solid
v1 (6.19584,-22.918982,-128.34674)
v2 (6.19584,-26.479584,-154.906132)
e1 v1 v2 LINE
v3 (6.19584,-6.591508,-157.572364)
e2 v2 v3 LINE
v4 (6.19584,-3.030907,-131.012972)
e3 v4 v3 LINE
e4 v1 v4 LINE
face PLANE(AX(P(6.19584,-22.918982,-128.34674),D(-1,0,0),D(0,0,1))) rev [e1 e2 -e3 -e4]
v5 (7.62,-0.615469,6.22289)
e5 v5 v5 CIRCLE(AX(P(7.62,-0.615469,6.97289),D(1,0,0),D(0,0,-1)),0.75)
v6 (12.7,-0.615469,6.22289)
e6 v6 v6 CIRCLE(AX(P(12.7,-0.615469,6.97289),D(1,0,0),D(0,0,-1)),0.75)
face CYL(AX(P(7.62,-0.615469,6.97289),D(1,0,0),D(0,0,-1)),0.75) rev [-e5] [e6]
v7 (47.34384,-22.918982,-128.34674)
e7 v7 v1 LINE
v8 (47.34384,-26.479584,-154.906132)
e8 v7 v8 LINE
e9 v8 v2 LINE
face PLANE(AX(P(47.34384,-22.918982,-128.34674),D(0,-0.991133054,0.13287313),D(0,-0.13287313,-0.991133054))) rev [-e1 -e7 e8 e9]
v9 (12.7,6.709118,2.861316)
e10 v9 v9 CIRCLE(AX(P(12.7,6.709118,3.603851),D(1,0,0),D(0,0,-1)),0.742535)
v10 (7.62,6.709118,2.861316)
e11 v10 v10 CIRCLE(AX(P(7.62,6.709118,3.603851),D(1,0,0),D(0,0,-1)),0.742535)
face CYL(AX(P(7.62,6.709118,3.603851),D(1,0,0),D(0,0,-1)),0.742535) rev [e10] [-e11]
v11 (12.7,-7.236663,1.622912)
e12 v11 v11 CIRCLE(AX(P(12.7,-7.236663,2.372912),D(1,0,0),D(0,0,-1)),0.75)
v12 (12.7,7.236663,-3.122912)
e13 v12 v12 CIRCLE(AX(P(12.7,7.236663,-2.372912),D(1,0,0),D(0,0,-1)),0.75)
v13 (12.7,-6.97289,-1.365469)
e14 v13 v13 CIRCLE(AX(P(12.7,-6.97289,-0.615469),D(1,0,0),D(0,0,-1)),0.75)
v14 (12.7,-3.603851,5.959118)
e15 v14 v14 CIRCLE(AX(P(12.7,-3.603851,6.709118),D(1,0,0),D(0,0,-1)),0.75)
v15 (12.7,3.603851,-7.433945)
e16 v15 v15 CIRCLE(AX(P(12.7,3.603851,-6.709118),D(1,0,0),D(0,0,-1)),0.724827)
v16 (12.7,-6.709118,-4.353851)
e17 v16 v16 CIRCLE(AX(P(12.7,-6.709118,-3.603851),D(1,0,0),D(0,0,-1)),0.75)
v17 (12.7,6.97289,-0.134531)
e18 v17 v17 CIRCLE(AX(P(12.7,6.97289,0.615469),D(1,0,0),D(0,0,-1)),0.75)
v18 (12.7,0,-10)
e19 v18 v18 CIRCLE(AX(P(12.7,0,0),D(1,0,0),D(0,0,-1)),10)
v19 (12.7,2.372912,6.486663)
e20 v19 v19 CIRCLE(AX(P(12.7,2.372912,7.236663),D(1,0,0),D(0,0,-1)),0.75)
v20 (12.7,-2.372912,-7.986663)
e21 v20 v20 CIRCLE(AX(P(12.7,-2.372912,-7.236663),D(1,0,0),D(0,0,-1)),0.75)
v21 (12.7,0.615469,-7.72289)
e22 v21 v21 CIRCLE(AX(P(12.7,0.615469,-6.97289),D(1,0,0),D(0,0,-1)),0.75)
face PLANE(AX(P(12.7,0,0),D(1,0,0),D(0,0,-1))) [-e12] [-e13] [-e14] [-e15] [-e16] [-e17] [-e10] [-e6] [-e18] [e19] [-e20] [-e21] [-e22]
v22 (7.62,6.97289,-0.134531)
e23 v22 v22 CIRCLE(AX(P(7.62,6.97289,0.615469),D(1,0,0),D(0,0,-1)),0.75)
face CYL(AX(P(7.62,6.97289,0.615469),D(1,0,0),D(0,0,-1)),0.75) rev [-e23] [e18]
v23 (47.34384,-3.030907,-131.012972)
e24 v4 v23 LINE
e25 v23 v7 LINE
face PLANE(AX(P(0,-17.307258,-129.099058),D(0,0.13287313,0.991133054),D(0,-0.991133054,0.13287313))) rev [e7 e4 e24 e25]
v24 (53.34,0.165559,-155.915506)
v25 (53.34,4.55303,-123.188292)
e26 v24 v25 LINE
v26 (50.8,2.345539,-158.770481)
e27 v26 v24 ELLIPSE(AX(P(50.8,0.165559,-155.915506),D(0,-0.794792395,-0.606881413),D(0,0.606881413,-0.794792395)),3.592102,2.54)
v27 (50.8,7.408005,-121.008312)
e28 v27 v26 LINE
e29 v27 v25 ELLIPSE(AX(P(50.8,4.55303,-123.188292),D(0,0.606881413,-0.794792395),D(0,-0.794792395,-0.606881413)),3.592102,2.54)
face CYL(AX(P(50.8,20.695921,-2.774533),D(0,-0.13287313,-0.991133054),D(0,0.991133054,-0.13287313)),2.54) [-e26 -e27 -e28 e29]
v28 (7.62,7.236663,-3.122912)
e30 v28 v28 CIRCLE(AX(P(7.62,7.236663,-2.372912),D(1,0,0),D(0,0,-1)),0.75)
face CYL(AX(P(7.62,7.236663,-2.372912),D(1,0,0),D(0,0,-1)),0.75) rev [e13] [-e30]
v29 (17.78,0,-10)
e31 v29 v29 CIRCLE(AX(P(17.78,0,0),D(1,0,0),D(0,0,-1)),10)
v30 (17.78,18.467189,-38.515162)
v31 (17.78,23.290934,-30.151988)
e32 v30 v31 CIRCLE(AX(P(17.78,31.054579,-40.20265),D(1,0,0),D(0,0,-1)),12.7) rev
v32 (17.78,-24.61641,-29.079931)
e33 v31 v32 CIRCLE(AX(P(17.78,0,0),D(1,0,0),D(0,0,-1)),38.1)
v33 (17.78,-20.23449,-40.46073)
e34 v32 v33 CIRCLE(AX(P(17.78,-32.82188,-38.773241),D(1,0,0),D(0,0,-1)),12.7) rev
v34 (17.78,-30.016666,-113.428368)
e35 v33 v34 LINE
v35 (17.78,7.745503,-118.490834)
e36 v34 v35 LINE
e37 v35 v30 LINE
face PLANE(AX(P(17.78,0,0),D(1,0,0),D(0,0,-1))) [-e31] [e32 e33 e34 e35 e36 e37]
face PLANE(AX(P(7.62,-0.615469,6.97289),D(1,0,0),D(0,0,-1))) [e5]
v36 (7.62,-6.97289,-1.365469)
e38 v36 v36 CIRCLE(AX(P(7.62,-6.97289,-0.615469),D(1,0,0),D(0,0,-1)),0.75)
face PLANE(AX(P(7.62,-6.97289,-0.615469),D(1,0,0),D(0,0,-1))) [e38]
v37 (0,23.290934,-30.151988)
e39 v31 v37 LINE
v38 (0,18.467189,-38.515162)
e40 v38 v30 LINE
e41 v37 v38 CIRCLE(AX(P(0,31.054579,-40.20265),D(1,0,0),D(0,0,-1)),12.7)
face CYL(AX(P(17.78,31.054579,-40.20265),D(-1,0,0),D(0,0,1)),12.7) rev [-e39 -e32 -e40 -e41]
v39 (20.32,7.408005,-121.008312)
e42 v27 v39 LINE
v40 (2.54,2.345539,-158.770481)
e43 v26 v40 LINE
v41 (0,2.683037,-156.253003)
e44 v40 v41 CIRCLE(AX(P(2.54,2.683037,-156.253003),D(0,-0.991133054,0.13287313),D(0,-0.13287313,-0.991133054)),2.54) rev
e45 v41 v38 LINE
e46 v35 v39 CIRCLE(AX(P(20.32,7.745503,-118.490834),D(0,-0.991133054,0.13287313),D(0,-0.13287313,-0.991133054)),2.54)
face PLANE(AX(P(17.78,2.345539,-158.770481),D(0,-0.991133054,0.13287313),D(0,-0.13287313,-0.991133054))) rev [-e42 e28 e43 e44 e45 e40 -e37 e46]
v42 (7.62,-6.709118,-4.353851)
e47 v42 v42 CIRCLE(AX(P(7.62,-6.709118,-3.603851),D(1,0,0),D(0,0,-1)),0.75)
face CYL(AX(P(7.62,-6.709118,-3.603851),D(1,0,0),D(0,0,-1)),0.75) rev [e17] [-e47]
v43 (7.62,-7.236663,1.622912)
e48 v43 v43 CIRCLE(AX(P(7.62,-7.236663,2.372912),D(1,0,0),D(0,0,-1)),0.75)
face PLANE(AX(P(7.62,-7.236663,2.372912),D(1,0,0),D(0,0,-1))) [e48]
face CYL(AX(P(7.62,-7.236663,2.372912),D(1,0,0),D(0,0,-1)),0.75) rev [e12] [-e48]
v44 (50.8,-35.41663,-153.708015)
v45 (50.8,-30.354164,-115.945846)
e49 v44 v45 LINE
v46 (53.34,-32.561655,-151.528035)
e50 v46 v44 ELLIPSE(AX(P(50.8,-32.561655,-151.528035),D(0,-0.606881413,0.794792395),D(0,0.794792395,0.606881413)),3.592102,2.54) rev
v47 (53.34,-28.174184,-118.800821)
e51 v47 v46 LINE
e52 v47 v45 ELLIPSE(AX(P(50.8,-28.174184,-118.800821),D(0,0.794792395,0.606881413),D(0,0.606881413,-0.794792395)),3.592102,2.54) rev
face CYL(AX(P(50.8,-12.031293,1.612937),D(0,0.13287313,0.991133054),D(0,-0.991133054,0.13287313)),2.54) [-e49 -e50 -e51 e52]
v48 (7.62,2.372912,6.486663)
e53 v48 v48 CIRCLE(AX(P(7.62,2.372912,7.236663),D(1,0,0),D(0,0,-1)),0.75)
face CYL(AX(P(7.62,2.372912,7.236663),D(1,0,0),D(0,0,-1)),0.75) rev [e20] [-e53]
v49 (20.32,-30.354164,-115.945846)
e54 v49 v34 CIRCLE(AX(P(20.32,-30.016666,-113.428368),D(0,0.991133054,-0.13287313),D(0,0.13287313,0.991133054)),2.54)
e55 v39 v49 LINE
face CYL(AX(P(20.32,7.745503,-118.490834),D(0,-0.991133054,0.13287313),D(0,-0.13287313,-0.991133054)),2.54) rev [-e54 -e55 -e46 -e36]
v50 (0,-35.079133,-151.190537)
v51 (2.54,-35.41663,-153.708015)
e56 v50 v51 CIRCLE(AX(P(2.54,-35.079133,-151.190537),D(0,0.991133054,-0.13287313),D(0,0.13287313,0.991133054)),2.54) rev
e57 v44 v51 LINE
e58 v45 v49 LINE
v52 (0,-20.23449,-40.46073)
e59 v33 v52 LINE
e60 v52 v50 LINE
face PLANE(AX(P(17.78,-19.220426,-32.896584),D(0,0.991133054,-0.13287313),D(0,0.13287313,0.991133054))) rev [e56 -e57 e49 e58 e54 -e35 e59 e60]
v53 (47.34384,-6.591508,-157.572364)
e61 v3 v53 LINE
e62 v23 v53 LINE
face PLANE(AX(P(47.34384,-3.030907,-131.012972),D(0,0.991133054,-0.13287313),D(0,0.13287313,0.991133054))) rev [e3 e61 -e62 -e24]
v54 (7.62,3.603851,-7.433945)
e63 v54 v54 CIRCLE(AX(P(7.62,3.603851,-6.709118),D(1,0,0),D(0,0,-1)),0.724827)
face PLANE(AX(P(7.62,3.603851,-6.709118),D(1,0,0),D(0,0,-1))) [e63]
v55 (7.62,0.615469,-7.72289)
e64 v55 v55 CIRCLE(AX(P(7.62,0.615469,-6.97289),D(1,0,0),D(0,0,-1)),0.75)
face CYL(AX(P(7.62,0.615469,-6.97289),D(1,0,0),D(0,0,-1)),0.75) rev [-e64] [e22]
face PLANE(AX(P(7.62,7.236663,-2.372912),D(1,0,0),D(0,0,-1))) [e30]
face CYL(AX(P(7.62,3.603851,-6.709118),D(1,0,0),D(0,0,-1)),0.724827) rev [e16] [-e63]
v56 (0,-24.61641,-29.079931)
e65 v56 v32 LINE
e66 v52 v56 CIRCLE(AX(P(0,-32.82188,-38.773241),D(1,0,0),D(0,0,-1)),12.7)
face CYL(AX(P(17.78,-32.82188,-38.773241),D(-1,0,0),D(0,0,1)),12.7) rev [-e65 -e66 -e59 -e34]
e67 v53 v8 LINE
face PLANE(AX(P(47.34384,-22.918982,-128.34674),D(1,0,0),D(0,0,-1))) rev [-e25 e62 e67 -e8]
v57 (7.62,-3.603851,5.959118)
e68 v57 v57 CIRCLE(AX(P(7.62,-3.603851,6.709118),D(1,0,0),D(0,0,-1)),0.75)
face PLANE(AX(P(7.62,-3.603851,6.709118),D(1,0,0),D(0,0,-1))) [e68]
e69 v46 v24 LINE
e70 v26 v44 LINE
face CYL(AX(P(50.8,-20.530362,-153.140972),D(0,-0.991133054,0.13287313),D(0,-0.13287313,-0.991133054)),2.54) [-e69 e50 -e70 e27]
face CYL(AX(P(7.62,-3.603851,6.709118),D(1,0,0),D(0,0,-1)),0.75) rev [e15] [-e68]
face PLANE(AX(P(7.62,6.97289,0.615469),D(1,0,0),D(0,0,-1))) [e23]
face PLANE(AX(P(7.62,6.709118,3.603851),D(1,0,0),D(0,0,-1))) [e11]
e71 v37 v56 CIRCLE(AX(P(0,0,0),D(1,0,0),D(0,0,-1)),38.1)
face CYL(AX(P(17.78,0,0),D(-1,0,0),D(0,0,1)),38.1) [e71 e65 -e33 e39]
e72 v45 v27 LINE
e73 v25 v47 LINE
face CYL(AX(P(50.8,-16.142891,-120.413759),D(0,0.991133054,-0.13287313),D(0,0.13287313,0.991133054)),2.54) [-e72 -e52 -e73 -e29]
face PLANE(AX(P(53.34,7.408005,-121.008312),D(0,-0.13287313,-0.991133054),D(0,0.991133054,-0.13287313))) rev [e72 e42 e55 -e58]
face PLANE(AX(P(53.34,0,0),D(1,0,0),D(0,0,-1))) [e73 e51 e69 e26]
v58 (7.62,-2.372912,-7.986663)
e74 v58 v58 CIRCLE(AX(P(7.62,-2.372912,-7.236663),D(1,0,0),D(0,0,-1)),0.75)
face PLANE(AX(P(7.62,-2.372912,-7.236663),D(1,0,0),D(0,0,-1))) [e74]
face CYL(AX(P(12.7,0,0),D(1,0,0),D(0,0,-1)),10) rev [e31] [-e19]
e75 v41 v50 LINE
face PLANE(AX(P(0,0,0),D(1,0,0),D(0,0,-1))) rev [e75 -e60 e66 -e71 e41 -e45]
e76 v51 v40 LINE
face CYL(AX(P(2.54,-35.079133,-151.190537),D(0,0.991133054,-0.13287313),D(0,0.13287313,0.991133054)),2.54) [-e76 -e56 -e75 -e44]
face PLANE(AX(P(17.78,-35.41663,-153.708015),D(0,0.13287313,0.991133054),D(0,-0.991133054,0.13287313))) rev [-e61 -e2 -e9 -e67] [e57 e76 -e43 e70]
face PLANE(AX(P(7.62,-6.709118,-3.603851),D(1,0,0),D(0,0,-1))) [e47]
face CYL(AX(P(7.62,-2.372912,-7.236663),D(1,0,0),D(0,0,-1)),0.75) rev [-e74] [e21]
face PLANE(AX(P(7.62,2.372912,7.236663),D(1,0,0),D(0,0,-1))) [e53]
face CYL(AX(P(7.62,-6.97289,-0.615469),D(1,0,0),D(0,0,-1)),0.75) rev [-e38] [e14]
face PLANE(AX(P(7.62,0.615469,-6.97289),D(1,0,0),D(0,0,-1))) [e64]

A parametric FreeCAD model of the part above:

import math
import FreeCAD as App
import Part
import Sketcher
Q = App.Units.Quantity


def edges_at(feature, points):
    """Names of the edges that pass closest to the given points."""
    edges = feature.Shape.Edges
    near = lambda p: min(range(len(edges)), key=lambda i: edges[i].distToShape(Part.Vertex(*p))[0])
    return sorted({f"Edge{near(p) + 1}" for p in points})


def add_polygon(sketch, points):
    """Adds a closed chain of lines whose ends are joined by coincident constraints."""
    first, n = sketch.GeometryCount, len(points)
    for a, b in zip(points, points[1:] + points[:1]):
        sketch.addGeometry(Part.LineSegment(App.Vector(*a, 0), App.Vector(*b, 0)), False)
    for i in range(n):
        sketch.addConstraint(Sketcher.Constraint("Coincident", first + i, 2, first + (i + 1) % n, 1))

doc = App.newDocument("Part")
body = doc.addObject("PartDesign::Body", "Body")

sketch1 = body.newObject("Sketcher::SketchObject", "Sketch")
sketch1.AttachmentSupport = (doc.getObject("YZ_Plane"), [""])
sketch1.MapMode = "FlatFace"
sketch1.addGeometry(Part.LineSegment(App.Vector(-19, -33, 0), App.Vector(-35, -154, 0)), False)
sketch1.addGeometry(Part.LineSegment(App.Vector(-35, -154, 0), App.Vector(2, -159, 0)), False)
sketch1.addGeometry(Part.LineSegment(App.Vector(2, -159, 0), App.Vector(19, -33, 0)), False)
sketch1.addGeometry(Part.ArcOfCircle(Part.Circle(App.Vector(0, 0, 0), App.Vector(0, 0, 1), 38), math.radians(-60), math.radians(240)), False)
sketch1.addConstraint(Sketcher.Constraint("Coincident", 0, 2, 1, 1))
sketch1.addConstraint(Sketcher.Constraint("Coincident", 1, 2, 2, 1))
sketch1.addConstraint(Sketcher.Constraint("Coincident", 2, 2, 3, 1))
sketch1.addConstraint(Sketcher.Constraint("Coincident", 3, 2, 0, 1))
sketch1.addConstraint(Sketcher.Constraint("Coincident", 3, 3, -1, 1))
sketch1.addConstraint(Sketcher.Constraint("Perpendicular", 0, 1))
sketch1.addConstraint(Sketcher.Constraint("Perpendicular", 1, 2))
sketch1.addConstraint(Sketcher.Constraint("Horizontal", 2, 2, 3, 2))
sketch1.addConstraint(Sketcher.Constraint("Radius", 3, Q("1.5 in")))
sketch1.addConstraint(Sketcher.Constraint("Distance", 2, Q("5 in")))
sketch1.addConstraint(Sketcher.Constraint("Distance", 1, Q("1.5 in")))
sketch1.addConstraint(Sketcher.Constraint("DistanceX", 0, 2, -1, 1, Q("35.41663 mm")))
pad1 = body.newObject("PartDesign::Pad", "Pad")
pad1.Profile = sketch1
pad1.Length = Q("0.7 in")

sketch2 = body.newObject("Sketcher::SketchObject", "Sketch001")
sketch2.AttachmentSupport = (doc.getObject("YZ_Plane"), [""])
sketch2.MapMode = "FlatFace"
sketch2.AttachmentOffset = App.Placement(App.Vector(0, 0, 0.7 * 25.4), App.Rotation())
sketch2.addGeometry(Part.Circle(App.Vector(0, 0, 0), App.Vector(0, 0, 1), 10), False)
sketch2.addConstraint(Sketcher.Constraint("Coincident", 0, 3, -1, 1))
sketch2.addConstraint(Sketcher.Constraint("Diameter", 0, Q("20 mm")))
pocket1 = body.newObject("PartDesign::Pocket", "Pocket")
pocket1.Profile = sketch2
pocket1.Length = Q("0.2 in")

sketch3 = body.newObject("Sketcher::SketchObject", "Sketch002")
sketch3.AttachmentSupport = (doc.getObject("YZ_Plane"), [""])
sketch3.MapMode = "FlatFace"
sketch3.AttachmentOffset = App.Placement(App.Vector(0, 0, 0.5 * 25.4), App.Rotation())
sketch3.addGeometry(Part.Circle(App.Vector(2.4, 7.2, 0), App.Vector(0, 0, 1), 0.8), False)
sketch3.addGeometry(Part.Circle(App.Vector(-0.6, 7, 0), App.Vector(0, 0, 1), 0.8), False)
sketch3.addGeometry(Part.Circle(App.Vector(-3.6, 6.7, 0), App.Vector(0, 0, 1), 0.8), False)
sketch3.addGeometry(Part.Circle(App.Vector(-7.2, 2.4, 0), App.Vector(0, 0, 1), 0.8), False)
sketch3.addGeometry(Part.Circle(App.Vector(-7, -0.6, 0), App.Vector(0, 0, 1), 0.8), False)
sketch3.addGeometry(Part.Circle(App.Vector(-6.7, -3.6, 0), App.Vector(0, 0, 1), 0.8), False)
sketch3.addGeometry(Part.Circle(App.Vector(-2.4, -7.2, 0), App.Vector(0, 0, 1), 0.8), False)
sketch3.addGeometry(Part.Circle(App.Vector(0.6, -7, 0), App.Vector(0, 0, 1), 0.8), False)
sketch3.addGeometry(Part.Circle(App.Vector(3.6, -6.7, 0), App.Vector(0, 0, 1), 0.7), False)
sketch3.addGeometry(Part.Circle(App.Vector(7.2, -2.4, 0), App.Vector(0, 0, 1), 0.8), False)
sketch3.addGeometry(Part.Circle(App.Vector(7, 0.6, 0), App.Vector(0, 0, 1), 0.8), False)
sketch3.addGeometry(Part.Circle(App.Vector(6.7, 3.6, 0), App.Vector(0, 0, 1), 0.7), False)
sketch3.addConstraint(Sketcher.Constraint("Equal", 0, 1))
sketch3.addConstraint(Sketcher.Constraint("Equal", 1, 2))
sketch3.addConstraint(Sketcher.Constraint("Equal", 2, 3))
sketch3.addConstraint(Sketcher.Constraint("Equal", 3, 4))
sketch3.addConstraint(Sketcher.Constraint("Equal", 4, 5))
sketch3.addConstraint(Sketcher.Constraint("Equal", 5, 6))
sketch3.addConstraint(Sketcher.Constraint("Equal", 6, 7))
sketch3.addConstraint(Sketcher.Constraint("Equal", 7, 9))
sketch3.addConstraint(Sketcher.Constraint("Equal", 9, 10))
sketch3.addConstraint(Sketcher.Constraint("Symmetric", 0, 3, 6, 3, -1, 1))
sketch3.addConstraint(Sketcher.Constraint("Symmetric", 1, 3, 7, 3, -1, 1))
sketch3.addConstraint(Sketcher.Constraint("Symmetric", 2, 3, 8, 3, -1, 1))
sketch3.addConstraint(Sketcher.Constraint("Symmetric", 3, 3, 9, 3, -1, 1))
sketch3.addConstraint(Sketcher.Constraint("Symmetric", 4, 3, 10, 3, -1, 1))
sketch3.addConstraint(Sketcher.Constraint("Symmetric", 5, 3, 11, 3, -1, 1))
sketch3.addConstraint(Sketcher.Constraint("Diameter", 0, Q("1.5 mm")))
sketch3.addConstraint(Sketcher.Constraint("Diameter", 11, Q("1.48507 mm")))
sketch3.addConstraint(Sketcher.Constraint("Diameter", 8, Q("1.449655 mm")))
sketch3.addConstraint(Sketcher.Constraint("DistanceX", 1, 3, -1, 1, Q("0.615469 mm")))
sketch3.addConstraint(Sketcher.Constraint("DistanceY", -1, 1, 1, 3, Q("6.97289 mm")))
sketch3.addConstraint(Sketcher.Constraint("DistanceX", 2, 3, -1, 1, Q("3.603851 mm")))
sketch3.addConstraint(Sketcher.Constraint("DistanceX", 4, 3, -1, 1, Q("6.97289 mm")))
sketch3.addConstraint(Sketcher.Constraint("DistanceY", 4, 3, -1, 1, Q("0.615469 mm")))
sketch3.addConstraint(Sketcher.Constraint("DistanceY", 5, 3, -1, 1, Q("3.603851 mm")))
sketch3.addConstraint(Sketcher.Constraint("DistanceX", 1, 3, 0, 3, Q("2.988382 mm")))
sketch3.addConstraint(Sketcher.Constraint("DistanceX", 3, 3, 2, 3, Q("3.632812 mm")))
sketch3.addConstraint(Sketcher.Constraint("DistanceY", 3, 3, 1, 3, Q("4.599978 mm")))
sketch3.addConstraint(Sketcher.Constraint("DistanceY", 3, 3, 0, 3, Q("4.863751 mm")))
sketch3.addConstraint(Sketcher.Constraint("DistanceY", 5, 3, 2, 3, Q("10.312968 mm")))
sketch3.addConstraint(Sketcher.Constraint("DistanceX", 5, 3, 1, 3, Q("6.093648 mm")))
pocket2 = body.newObject("PartDesign::Pocket", "Pocket001")
pocket2.Profile = sketch3
pocket2.Length = Q("0.2 in")

sketch4 = body.newObject("Sketcher::SketchObject", "Sketch003")
sketch4.AttachmentSupport = (doc.getObject("YZ_Plane"), [""])
sketch4.MapMode = "FlatFace"
sketch4.AttachmentOffset = App.Placement(App.Vector(0, 0, 0.7 * 25.4), App.Rotation())
add_polygon(sketch4, [(-35, -154), (2, -159), (7, -121), (-30, -116)])
sketch4.addConstraint(Sketcher.Constraint("Perpendicular", 0, 1))
sketch4.addConstraint(Sketcher.Constraint("Perpendicular", 1, 2))
sketch4.addConstraint(Sketcher.Constraint("Perpendicular", 2, 3))
sketch4.addConstraint(Sketcher.Constraint("Equal", 0, 1))
sketch4.addConstraint(Sketcher.Constraint("Distance", 0, Q("1.5 in")))
sketch4.addConstraint(Sketcher.Constraint("DistanceX", -1, 1, 0, 2, Q("2.345539 mm")))
sketch4.addConstraint(Sketcher.Constraint("DistanceY", 0, 2, -1, 1, Q("158.770481 mm")))
sketch4.addConstraint(Sketcher.Constraint("DistanceX", 3, 2, -1, 1, Q("35.41663 mm")))
pad2 = body.newObject("PartDesign::Pad", "Pad001")
pad2.Profile = sketch4
pad2.Length = Q("1.4 in")

sketch5 = body.newObject("Sketcher::SketchObject", "Sketch004")
sketch5.Placement = App.Placement(App.Vector(0, -20.86786, -155.65845), App.Rotation(App.Vector(-1, 0, 0), App.Vector(0, 0.991133054, -0.13287313), App.Vector(0, -0.13287313, -0.991133054), "ZXY"))
add_polygon(sketch5, [(-47, 14), (-47, -6), (-6, -6), (-6, 14)])
sketch5.addConstraint(Sketcher.Constraint("Vertical", 0))
sketch5.addConstraint(Sketcher.Constraint("Horizontal", 1))
sketch5.addConstraint(Sketcher.Constraint("Vertical", 2))
sketch5.addConstraint(Sketcher.Constraint("Horizontal", 3))
sketch5.addConstraint(Sketcher.Constraint("DistanceX", 1, 1, 1, 2, Q("1.62 in")))
sketch5.addConstraint(Sketcher.Constraint("DistanceY", 0, 2, 0, 1, Q("0.79 in")))
sketch5.addConstraint(Sketcher.Constraint("DistanceX", 0, 2, -1, 1, Q("47.34384 mm")))
sketch5.addConstraint(Sketcher.Constraint("DistanceY", 0, 2, -1, 1, Q("5.661928 mm")))
pocket3 = body.newObject("PartDesign::Pocket", "Pocket002")
pocket3.Profile = sketch5
pocket3.Length = Q("1.055 in")
doc.recompute()

fillet = body.newObject("PartDesign::Fillet", "Fillet")
fillet.Base = (pocket3, edges_at(pocket3, [(17.78, -11.473, -118.477)]))
fillet.Radius = Q("0.1 in")
doc.recompute()

fillet2 = body.newObject("PartDesign::Fillet", "Fillet001")
fillet2.Base = (fillet, edges_at(fillet, [
    (53.34, 4.877, -139.889),
    (53.34, -11.473, -118.477),
    (53.34, -32.885, -134.827),
    (53.34, -16.536, -156.239),
]))
fillet2.Radius = Q("0.1 in")
doc.recompute()

fillet3 = body.newObject("PartDesign::Fillet", "Fillet002")
fillet3.Base = (fillet2, edges_at(fillet2, [(0, -16.536, -156.239)]))
fillet3.Radius = Q("0.1 in")
doc.recompute()

fillet4 = body.newObject("PartDesign::Fillet", "Fillet003")
fillet4.Base = (fillet3, edges_at(fillet3, [(8.89, -19.22, -32.897), (8.89, 19.22, -32.897)]))
fillet4.Radius = Q("0.5 in")

doc.recompute()
